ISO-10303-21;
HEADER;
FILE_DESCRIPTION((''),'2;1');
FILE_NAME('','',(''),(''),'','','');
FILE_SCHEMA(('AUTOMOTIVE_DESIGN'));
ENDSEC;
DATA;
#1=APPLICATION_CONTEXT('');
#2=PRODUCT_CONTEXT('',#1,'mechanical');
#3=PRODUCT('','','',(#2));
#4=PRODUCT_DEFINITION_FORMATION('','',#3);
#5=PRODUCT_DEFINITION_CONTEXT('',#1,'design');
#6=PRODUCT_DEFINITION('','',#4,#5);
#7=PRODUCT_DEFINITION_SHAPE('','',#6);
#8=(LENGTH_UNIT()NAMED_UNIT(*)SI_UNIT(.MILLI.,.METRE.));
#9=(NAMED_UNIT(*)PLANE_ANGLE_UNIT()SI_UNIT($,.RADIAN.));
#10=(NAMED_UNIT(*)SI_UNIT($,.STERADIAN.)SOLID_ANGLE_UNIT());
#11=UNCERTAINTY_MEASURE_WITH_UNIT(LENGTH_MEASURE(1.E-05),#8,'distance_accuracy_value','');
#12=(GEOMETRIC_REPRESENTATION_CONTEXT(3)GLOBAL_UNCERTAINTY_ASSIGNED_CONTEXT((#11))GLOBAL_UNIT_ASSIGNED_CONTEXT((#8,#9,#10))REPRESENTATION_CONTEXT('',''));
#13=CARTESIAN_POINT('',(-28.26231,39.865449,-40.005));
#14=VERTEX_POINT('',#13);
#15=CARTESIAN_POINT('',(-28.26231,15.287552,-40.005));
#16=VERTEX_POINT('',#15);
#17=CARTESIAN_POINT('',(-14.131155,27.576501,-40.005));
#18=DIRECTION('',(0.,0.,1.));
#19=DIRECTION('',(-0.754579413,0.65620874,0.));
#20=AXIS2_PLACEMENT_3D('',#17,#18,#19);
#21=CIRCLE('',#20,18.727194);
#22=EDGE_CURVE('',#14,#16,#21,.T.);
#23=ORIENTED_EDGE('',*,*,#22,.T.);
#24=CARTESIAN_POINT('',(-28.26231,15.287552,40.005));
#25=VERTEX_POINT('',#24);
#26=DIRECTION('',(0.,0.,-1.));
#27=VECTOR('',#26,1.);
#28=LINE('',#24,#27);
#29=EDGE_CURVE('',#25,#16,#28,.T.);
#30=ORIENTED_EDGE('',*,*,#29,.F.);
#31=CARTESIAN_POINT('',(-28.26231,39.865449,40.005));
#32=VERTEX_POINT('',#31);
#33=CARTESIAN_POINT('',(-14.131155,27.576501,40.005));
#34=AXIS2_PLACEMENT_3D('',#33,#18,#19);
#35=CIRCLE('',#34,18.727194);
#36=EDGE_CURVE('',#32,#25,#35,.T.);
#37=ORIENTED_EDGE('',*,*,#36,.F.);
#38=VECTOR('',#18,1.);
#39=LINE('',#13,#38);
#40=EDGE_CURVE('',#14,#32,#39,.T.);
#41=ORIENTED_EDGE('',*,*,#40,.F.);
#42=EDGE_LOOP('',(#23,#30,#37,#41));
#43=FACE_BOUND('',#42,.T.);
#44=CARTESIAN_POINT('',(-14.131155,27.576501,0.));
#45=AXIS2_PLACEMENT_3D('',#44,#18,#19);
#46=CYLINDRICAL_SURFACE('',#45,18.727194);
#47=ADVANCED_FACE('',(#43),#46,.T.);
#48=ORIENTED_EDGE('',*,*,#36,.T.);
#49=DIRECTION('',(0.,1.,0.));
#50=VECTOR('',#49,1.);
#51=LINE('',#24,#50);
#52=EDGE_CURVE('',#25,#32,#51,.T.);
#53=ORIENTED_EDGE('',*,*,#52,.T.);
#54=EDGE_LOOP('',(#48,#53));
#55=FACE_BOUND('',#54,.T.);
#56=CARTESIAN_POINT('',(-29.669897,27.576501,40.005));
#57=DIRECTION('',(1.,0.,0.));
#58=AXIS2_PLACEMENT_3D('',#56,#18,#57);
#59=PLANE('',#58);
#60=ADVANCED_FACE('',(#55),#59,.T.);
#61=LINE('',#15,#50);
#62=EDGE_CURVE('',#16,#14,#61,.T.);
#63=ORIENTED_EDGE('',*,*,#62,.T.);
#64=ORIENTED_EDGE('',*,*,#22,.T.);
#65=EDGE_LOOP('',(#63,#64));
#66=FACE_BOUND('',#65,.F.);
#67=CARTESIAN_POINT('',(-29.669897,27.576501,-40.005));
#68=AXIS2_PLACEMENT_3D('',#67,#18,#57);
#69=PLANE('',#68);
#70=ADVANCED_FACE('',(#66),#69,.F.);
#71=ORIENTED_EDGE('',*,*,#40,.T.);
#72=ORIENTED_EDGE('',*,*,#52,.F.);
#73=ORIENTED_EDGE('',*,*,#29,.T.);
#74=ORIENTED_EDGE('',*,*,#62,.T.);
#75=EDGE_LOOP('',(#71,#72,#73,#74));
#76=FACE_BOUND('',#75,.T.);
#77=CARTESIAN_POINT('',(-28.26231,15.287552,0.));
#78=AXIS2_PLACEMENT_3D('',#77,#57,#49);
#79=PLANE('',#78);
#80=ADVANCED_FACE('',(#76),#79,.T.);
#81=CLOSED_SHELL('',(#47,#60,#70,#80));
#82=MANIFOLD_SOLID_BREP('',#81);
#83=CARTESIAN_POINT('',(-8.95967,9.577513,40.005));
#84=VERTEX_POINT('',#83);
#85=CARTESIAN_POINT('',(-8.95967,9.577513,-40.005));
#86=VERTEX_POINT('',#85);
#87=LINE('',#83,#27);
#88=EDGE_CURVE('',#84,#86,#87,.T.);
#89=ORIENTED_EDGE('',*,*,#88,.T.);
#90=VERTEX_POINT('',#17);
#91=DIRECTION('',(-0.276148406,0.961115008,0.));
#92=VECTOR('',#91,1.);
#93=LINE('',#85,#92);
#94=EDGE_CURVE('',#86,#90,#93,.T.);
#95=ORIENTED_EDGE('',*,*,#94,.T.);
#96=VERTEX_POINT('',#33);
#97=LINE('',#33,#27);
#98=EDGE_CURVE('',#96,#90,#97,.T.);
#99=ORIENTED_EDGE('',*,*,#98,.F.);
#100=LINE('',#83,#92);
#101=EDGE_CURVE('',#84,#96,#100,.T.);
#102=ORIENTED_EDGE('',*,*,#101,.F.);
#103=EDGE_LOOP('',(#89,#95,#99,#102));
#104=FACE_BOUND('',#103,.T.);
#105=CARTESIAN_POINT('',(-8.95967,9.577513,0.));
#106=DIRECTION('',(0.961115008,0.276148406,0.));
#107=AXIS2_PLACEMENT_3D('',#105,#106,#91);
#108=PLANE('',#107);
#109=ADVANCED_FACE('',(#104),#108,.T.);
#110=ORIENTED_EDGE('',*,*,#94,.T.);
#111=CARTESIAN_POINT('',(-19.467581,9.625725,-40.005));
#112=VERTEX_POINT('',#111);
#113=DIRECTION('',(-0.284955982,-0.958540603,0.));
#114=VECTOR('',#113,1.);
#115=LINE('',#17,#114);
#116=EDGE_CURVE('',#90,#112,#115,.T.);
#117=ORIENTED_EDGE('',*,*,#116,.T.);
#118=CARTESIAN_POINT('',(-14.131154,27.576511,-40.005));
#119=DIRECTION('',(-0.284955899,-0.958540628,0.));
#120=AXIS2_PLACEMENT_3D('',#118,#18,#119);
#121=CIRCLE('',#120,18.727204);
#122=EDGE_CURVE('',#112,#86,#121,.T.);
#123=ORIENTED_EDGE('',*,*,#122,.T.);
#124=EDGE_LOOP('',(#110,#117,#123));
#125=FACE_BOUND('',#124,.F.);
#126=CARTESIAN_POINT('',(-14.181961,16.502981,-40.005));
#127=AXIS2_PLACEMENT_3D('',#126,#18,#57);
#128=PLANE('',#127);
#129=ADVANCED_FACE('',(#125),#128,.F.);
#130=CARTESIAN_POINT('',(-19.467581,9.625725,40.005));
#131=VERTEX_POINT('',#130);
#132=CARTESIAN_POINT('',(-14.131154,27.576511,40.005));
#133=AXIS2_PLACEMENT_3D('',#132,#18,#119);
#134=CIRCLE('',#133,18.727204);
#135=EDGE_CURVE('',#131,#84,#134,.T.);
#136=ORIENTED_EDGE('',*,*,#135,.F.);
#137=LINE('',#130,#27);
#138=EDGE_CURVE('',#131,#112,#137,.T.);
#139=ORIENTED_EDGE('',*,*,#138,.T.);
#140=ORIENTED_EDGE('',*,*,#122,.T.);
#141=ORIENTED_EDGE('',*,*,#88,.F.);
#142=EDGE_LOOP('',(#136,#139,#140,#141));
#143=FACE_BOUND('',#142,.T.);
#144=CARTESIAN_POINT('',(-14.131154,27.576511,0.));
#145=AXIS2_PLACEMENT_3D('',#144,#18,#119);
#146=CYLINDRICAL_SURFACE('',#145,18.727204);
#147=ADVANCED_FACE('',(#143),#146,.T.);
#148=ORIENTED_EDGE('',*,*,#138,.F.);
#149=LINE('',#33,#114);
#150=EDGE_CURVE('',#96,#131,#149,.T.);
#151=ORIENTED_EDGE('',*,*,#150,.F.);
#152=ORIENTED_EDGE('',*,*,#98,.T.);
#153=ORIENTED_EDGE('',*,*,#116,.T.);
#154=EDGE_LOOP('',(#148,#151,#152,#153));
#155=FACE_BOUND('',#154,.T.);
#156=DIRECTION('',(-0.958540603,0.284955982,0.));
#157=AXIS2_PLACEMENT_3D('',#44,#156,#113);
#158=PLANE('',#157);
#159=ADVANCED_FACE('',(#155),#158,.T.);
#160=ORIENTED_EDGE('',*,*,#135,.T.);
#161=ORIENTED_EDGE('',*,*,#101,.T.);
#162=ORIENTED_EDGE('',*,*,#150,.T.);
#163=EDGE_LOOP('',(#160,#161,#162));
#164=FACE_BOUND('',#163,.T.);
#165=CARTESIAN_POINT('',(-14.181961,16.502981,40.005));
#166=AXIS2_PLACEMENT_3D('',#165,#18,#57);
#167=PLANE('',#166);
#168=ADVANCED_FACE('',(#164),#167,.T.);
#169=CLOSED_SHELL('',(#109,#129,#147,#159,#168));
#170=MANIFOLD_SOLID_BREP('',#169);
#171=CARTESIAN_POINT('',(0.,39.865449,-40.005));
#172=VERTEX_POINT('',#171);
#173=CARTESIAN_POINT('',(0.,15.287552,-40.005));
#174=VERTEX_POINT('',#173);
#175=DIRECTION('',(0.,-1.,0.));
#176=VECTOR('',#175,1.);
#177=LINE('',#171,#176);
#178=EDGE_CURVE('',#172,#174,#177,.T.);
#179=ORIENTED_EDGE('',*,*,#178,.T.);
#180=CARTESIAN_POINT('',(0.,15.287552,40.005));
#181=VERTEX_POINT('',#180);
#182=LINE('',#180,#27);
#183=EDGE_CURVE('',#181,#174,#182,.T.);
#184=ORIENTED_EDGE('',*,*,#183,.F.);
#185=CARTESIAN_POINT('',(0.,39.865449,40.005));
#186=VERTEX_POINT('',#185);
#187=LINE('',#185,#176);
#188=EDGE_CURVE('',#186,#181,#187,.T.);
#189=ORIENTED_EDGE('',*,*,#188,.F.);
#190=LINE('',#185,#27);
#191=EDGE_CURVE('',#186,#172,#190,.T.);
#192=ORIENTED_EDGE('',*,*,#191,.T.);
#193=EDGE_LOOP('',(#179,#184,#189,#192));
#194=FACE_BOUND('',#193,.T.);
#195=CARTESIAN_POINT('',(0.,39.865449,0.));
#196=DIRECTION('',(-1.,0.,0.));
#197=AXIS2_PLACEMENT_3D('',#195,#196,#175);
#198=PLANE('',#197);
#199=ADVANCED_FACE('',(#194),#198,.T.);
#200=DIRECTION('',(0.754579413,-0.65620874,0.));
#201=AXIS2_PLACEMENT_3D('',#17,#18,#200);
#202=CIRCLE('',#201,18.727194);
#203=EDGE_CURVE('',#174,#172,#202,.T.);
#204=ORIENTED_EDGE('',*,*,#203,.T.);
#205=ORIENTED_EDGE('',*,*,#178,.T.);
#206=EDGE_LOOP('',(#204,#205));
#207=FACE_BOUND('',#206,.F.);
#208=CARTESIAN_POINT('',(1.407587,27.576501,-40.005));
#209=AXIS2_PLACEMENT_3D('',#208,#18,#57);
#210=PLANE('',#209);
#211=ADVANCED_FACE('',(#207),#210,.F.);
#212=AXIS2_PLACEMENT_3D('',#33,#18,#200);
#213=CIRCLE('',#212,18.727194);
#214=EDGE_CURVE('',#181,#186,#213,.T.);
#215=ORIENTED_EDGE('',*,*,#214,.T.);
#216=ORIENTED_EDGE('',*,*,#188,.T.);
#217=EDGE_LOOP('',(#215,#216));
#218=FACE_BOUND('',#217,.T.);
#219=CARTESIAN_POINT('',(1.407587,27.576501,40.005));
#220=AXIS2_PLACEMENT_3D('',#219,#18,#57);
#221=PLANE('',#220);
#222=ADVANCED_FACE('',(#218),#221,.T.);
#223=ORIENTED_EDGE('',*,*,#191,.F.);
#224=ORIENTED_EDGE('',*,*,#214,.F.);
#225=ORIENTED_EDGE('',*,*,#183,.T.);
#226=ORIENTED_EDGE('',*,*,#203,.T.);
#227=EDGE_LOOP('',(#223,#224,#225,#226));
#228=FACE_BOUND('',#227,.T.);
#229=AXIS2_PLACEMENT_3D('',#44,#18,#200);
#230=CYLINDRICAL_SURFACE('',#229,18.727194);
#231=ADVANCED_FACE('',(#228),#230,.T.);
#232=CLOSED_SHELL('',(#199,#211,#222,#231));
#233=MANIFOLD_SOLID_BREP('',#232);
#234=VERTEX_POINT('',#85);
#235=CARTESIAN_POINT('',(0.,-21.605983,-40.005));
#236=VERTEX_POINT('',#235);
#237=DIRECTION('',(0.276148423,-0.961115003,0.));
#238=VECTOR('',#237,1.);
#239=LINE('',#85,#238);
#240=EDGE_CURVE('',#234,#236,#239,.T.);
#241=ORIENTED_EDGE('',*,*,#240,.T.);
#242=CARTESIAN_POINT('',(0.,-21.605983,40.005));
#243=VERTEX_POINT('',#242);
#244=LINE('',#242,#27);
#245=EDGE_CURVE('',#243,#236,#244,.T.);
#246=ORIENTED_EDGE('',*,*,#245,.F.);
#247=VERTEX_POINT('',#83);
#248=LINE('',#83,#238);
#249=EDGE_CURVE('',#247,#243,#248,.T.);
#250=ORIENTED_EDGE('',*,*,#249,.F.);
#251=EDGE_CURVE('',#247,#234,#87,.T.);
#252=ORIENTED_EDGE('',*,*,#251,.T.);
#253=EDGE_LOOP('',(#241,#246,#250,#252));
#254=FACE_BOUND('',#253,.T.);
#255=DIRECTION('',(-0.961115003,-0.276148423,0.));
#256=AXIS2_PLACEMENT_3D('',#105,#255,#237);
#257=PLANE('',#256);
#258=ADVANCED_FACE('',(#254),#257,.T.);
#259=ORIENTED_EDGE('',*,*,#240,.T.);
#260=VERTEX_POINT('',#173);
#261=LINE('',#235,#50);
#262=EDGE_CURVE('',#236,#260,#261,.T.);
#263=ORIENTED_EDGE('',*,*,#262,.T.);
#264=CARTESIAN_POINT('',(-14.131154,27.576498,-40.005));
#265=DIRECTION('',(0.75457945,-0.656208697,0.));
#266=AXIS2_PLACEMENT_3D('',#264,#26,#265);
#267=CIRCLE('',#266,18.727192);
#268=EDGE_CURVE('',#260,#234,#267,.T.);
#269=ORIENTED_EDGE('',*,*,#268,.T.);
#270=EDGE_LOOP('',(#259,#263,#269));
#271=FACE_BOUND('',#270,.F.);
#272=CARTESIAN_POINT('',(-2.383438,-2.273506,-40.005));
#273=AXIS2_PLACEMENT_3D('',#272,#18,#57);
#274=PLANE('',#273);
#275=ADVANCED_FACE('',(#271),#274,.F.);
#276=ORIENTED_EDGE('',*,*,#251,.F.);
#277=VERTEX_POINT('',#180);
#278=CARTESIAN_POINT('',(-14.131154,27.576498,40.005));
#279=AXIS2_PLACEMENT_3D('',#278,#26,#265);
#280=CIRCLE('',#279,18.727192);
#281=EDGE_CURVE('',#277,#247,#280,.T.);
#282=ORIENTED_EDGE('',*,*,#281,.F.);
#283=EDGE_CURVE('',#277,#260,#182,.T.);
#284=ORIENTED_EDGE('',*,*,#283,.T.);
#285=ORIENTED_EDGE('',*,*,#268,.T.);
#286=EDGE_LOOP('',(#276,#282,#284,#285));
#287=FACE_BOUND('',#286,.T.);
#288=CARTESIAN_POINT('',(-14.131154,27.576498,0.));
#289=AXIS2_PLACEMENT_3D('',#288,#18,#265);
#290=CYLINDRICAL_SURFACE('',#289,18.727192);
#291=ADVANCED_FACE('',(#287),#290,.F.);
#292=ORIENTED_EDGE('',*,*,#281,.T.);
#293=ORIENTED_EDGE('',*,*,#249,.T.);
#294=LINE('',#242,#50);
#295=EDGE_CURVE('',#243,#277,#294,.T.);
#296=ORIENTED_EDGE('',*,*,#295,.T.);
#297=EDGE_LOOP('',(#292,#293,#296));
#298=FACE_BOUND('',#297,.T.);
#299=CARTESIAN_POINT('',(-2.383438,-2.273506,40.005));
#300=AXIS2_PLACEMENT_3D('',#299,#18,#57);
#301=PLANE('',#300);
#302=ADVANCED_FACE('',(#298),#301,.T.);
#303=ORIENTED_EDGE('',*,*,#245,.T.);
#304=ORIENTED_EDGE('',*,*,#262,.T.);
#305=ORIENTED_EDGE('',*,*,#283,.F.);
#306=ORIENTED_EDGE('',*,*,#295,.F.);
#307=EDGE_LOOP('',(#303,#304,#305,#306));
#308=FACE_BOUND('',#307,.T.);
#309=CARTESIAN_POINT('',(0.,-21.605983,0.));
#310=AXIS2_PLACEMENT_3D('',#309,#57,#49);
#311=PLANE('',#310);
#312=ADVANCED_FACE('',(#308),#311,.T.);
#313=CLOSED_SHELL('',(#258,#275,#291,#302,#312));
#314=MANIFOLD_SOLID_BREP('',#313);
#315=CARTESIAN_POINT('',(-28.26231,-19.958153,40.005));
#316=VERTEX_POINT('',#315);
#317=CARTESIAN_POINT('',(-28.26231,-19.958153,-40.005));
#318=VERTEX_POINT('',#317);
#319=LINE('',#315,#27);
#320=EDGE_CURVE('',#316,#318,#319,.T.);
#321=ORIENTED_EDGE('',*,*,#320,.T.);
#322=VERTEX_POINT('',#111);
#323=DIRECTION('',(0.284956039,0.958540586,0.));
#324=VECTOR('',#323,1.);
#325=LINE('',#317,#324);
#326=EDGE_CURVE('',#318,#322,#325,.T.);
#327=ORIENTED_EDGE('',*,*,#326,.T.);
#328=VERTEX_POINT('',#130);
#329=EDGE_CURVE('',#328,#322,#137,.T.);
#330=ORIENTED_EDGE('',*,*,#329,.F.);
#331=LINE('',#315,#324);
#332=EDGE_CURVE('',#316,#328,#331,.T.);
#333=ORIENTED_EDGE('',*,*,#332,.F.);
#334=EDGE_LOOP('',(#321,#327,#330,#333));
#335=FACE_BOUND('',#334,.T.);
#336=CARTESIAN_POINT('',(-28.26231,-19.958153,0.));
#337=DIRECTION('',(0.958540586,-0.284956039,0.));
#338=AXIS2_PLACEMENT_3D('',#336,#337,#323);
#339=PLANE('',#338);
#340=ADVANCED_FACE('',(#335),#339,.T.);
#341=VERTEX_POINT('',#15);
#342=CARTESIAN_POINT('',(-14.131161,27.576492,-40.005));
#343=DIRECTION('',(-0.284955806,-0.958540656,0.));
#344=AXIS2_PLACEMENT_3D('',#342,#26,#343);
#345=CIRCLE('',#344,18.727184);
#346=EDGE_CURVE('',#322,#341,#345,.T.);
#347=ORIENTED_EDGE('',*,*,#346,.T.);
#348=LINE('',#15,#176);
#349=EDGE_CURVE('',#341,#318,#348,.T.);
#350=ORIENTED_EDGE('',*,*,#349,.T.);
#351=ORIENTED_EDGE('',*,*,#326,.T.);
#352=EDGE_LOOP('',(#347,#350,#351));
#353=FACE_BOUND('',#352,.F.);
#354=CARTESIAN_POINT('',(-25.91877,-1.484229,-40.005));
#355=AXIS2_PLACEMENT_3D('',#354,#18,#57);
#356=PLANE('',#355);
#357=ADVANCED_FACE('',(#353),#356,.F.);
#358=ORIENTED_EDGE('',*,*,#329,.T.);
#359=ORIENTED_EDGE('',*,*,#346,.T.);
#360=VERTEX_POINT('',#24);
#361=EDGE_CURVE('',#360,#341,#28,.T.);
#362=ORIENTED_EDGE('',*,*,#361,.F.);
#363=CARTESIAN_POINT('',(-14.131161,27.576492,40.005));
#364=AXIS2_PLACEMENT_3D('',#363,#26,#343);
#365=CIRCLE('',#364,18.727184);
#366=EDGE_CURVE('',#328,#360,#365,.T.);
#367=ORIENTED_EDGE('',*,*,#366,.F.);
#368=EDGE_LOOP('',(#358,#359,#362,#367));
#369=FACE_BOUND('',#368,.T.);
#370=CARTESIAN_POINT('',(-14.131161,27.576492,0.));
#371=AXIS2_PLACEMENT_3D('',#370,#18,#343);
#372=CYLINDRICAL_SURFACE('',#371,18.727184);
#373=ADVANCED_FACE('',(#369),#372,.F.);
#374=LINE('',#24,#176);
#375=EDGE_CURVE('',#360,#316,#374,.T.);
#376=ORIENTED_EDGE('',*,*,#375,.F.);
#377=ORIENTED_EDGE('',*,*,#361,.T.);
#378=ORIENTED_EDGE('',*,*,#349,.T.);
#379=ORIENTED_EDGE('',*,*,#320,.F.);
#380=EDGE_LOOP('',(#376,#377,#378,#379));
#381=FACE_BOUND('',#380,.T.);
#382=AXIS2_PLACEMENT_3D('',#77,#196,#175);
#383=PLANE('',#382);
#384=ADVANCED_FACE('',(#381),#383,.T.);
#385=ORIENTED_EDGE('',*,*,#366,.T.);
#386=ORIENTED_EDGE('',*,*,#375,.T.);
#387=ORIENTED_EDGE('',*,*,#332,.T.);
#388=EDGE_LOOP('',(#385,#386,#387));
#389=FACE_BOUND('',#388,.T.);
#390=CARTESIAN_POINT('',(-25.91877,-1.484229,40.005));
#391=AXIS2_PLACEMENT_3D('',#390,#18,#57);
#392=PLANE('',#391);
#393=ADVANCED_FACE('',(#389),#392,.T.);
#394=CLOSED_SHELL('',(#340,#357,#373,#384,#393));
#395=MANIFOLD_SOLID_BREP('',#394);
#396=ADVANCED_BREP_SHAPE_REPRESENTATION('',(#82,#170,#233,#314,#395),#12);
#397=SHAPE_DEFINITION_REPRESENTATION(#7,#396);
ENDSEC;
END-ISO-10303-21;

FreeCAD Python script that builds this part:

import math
import FreeCAD as App
import Part
import Sketcher
Q = App.Units.Quantity

doc = App.newDocument("Part")
body = doc.addObject("PartDesign::Body", "Body")
body.AllowCompound = True

# Sketch on XY plane
sketch1 = doc.addObject("Sketcher::SketchObject", "Sketch")
body.addObject(sketch1)
sketch1.AttachmentSupport = (doc.XY_Plane, [""])
sketch1.MapMode = "FlatFace"
sketch1.addGeometry([
    Part.LineSegment(App.Vector(0, 40, 0), App.Vector(0, 15, 0)),  # 0
    Part.ArcOfCircle(Part.Circle(App.Vector(-14, 28, 0), App.Vector(0, 0, 1), 19), math.radians(-41), math.radians(41)),  # 1
    Part.ArcOfCircle(Part.Circle(App.Vector(-14, 28, 0), App.Vector(0, 0, 1), 19), math.radians(-74), math.radians(-41)),  # 2
    Part.LineSegment(App.Vector(-9, 10, 0), App.Vector(0, -22, 0)),  # 3
    Part.LineSegment(App.Vector(0, -22, 0), App.Vector(0, 15, 0)),  # 4
    Part.LineSegment(App.Vector(-14, 28, 0), App.Vector(-19, 10, 0)),  # 5
    Part.ArcOfCircle(Part.Circle(App.Vector(-14, 28, 0), App.Vector(0, 0, 1), 19), math.radians(-107), math.radians(-74)),  # 6
    Part.LineSegment(App.Vector(-9, 10, 0), App.Vector(-14, 28, 0)),  # 7
    Part.ArcOfCircle(Part.Circle(App.Vector(-14, 28, 0), App.Vector(0, 0, 1), 19), math.radians(-139), math.radians(-107)),  # 8
    Part.LineSegment(App.Vector(-28, 15, 0), App.Vector(-28, -20, 0)),  # 9
    Part.LineSegment(App.Vector(-28, -20, 0), App.Vector(-19, 10, 0)),  # 10
    Part.LineSegment(App.Vector(-28, 15, 0), App.Vector(-28, 40, 0)),  # 11
    Part.ArcOfCircle(Part.Circle(App.Vector(-14, 28, 0), App.Vector(0, 0, 1), 19), math.radians(139), math.radians(221)),  # 12
], False)
sketch1.addConstraint([
    Sketcher.Constraint("Coincident", 0, 1, 1, 2),
    Sketcher.Constraint("Coincident", 1, 1, 0, 2),
    Sketcher.Constraint("Coincident", 2, 1, 3, 1),
    Sketcher.Constraint("Coincident", 3, 2, 4, 1),
    Sketcher.Constraint("Coincident", 4, 2, 2, 2),
    Sketcher.Constraint("Coincident", 5, 2, 6, 1),
    Sketcher.Constraint("Coincident", 6, 2, 7, 1),
    Sketcher.Constraint("Coincident", 7, 2, 5, 1),
    Sketcher.Constraint("Coincident", 8, 1, 9, 1),
    Sketcher.Constraint("Coincident", 9, 2, 10, 1),
    Sketcher.Constraint("Coincident", 10, 2, 8, 2),
    Sketcher.Constraint("Coincident", 11, 1, 12, 2),
    Sketcher.Constraint("Coincident", 12, 1, 11, 2),
    Sketcher.Constraint("Vertical", 0),
    Sketcher.Constraint("Vertical", 4),
    Sketcher.Constraint("Vertical", 9),
    Sketcher.Constraint("Vertical", 11),
    Sketcher.Constraint("Coincident", 2, 3, 1, 3),
    Sketcher.Constraint("Coincident", 8, 3, 2, 3),
    Sketcher.Constraint("Coincident", 12, 3, 1, 3),
    Sketcher.Constraint("Coincident", 4, 2, 1, 1),
    Sketcher.Constraint("Coincident", 6, 2, 2, 1),
    Sketcher.Constraint("Coincident", 7, 2, 1, 3),
    Sketcher.Constraint("Coincident", 10, 2, 5, 2),
    Sketcher.Constraint("Coincident", 11, 1, 8, 1),
    Sketcher.Constraint("Equal", 1, 12),
    Sketcher.Constraint("PointOnObject", 0, 1, -2),
    Sketcher.Constraint("Parallel", 3, 7),
    Sketcher.Constraint("Parallel", 5, 10),
    Sketcher.Constraint("Horizontal", 4, 2, 8, 1),
    Sketcher.Constraint("Vertical", 2, 3, 6, 3),
    Sketcher.Constraint("Radius", 2, Q("18.727192 mm")),
    Sketcher.Constraint("DistanceY", -1, 1, 1, 3, Q("27.576501 mm")),
    Sketcher.Constraint("Distance", 10, Q("30.863459 mm")),
    Sketcher.Constraint("DistanceY", 0, 2, 0, 1, Q("24.577897 mm")),
    Sketcher.Constraint("DistanceY", 4, 1, 4, 2, Q("36.893535 mm")),
])
pad1 = doc.addObject("PartDesign::Pad", "Pad")
body.addObject(pad1)
pad1.Profile = sketch1
pad1.Length = Q("3.15 in")
pad1.Midplane = True

doc.recompute()
